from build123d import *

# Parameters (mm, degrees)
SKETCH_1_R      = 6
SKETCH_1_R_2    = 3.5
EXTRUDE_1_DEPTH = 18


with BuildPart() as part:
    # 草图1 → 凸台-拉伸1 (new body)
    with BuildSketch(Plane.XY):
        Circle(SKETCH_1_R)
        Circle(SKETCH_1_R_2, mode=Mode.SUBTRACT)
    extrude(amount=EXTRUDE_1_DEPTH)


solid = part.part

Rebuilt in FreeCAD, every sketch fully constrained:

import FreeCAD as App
import Part
import Sketcher
from FreeCAD import Vector

doc = App.newDocument("Part")
body = doc.addObject("PartDesign::Body", "Body")

# Sketch on XY plane
sketch1 = body.newObject("Sketcher::SketchObject", "Sketch")
sketch1.AttachmentSupport = (doc.getObject("XY_Plane"), [""])
sketch1.MapMode = "FlatFace"
sketch1.addGeometry([
    Part.Circle(Vector(0, 0, 0), Vector(0, 0, 1), 6),
    Part.Circle(Vector(0, 0, 0), Vector(0, 0, 1), 3.5),
], False)
sketch1.addConstraint([
    Sketcher.Constraint("Coincident", 0, 3, -1, 1),
    Sketcher.Constraint("Coincident", 1, 3, -1, 1),
    Sketcher.Constraint("Diameter", 0, 12.0),
    Sketcher.Constraint("Diameter", 1, 7.0),
])
pad1 = body.newObject("PartDesign::Pad", "Pad")
pad1.Profile = sketch1
pad1.Length = 18

doc.recompute()
